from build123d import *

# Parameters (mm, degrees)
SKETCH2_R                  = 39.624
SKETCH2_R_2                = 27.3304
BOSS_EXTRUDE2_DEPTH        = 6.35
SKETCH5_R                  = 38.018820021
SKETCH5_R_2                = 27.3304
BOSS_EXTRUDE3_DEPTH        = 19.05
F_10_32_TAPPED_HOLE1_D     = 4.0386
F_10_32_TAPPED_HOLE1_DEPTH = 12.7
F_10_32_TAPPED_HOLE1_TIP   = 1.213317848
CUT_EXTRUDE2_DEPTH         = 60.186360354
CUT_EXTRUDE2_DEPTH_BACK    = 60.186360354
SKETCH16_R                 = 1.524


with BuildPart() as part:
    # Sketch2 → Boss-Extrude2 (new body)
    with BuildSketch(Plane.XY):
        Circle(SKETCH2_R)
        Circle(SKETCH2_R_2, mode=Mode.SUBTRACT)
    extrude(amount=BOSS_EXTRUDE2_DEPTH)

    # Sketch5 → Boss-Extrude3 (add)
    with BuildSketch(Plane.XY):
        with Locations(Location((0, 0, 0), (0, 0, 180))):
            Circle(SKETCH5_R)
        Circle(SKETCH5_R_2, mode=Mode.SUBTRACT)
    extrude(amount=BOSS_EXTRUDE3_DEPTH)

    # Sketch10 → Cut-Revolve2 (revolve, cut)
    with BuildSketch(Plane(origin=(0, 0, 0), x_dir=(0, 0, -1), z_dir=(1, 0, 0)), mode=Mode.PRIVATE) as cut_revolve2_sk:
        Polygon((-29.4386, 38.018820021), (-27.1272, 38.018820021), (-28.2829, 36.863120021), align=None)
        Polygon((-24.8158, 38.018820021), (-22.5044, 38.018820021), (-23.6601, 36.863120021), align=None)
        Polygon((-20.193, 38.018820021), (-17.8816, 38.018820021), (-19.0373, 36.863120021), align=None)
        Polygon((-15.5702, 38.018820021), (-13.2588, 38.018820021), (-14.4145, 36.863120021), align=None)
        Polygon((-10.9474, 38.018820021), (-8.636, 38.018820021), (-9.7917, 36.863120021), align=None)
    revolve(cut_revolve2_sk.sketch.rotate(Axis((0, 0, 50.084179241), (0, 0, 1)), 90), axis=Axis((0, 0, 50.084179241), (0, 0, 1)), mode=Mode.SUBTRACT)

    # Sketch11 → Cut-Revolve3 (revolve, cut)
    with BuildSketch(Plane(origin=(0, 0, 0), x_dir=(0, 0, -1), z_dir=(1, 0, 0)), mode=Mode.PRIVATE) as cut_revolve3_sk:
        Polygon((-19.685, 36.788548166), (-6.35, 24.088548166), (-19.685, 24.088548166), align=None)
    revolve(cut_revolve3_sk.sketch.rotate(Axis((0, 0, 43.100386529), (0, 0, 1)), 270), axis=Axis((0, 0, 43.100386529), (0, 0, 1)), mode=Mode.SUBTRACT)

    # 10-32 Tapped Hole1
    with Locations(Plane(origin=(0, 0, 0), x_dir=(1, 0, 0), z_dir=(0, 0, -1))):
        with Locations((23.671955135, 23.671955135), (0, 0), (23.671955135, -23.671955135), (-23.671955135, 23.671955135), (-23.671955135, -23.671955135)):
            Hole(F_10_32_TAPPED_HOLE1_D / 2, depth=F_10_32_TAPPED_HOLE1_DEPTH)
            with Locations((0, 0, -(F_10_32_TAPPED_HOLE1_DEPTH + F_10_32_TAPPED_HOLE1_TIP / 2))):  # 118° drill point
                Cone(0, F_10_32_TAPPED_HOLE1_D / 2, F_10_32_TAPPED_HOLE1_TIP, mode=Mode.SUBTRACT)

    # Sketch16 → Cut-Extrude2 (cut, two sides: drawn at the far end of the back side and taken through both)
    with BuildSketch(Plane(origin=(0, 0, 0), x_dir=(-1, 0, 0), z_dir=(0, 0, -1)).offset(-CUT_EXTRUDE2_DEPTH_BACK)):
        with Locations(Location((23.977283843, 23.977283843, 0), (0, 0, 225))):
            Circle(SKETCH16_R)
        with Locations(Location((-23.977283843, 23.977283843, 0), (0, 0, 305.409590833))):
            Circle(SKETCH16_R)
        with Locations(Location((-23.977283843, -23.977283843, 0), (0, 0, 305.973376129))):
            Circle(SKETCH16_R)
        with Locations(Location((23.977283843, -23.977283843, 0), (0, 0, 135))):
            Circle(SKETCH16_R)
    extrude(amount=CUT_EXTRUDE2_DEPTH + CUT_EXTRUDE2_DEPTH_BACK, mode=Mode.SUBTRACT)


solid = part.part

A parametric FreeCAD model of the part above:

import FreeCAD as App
import Part
import Sketcher
Q = App.Units.Quantity

doc = App.newDocument("Part")
body = doc.addObject("PartDesign::Body", "Body")

sketch1 = doc.addObject("Sketcher::SketchObject", "Sketch")
body.addObject(sketch1)
sketch1.AttachmentSupport = (doc.XY_Plane, [""])
sketch1.MapMode = "FlatFace"
sketch1.addGeometry([
    Part.Circle(App.Vector(0, 0, 0), App.Vector(0, 0, 1), 40),
    Part.Circle(App.Vector(0, 0, 0), App.Vector(0, 0, 1), 27),
], False)
sketch1.addConstraint([
    Sketcher.Constraint("Coincident", 0, 3, -1, 1),
    Sketcher.Constraint("Coincident", 1, 3, -1, 1),
    Sketcher.Constraint("Diameter", 0, Q("3.12 in")),
    Sketcher.Constraint("Diameter", 1, Q("2.152 in")),
])
pad1 = doc.addObject("PartDesign::Pad", "Pad")
body.addObject(pad1)
pad1.Profile = sketch1
pad1.Length = Q("0.25 in")

sketch2 = doc.addObject("Sketcher::SketchObject", "Sketch001")
body.addObject(sketch2)
sketch2.AttachmentSupport = (doc.XY_Plane, [""])
sketch2.MapMode = "FlatFace"
sketch2.addGeometry([
    Part.Circle(App.Vector(0, 0, 0), App.Vector(0, 0, 1), 38),
    Part.Circle(App.Vector(0, 0, 0), App.Vector(0, 0, 1), 27),
], False)
sketch2.addConstraint([
    Sketcher.Constraint("Coincident", 0, 3, -1, 1),
    Sketcher.Constraint("Coincident", 1, 3, -1, 1),
    Sketcher.Constraint("Diameter", 1, Q("2.152 in")),
    Sketcher.Constraint("Diameter", 0, Q("76.03764 mm")),
])
pad2 = doc.addObject("PartDesign::Pad", "Pad001")
body.addObject(pad2)
pad2.Profile = sketch2
pad2.Length = Q("0.75 in")

sketch3 = doc.addObject("Sketcher::SketchObject", "Sketch002")
body.addObject(sketch3)
sketch3.AttachmentSupport = (doc.YZ_Plane, [""])
sketch3.MapMode = "FlatFace"
sketch3.addGeometry([
    Part.LineSegment(App.Vector(38, 27.1, 0), App.Vector(38, 29.4, 0)),
    Part.LineSegment(App.Vector(38, 29.4, 0), App.Vector(36.9, 28.3, 0)),
    Part.LineSegment(App.Vector(36.9, 28.3, 0), App.Vector(38, 27.1, 0)),
    Part.LineSegment(App.Vector(38, 22.5, 0), App.Vector(38, 24.8, 0)),
    Part.LineSegment(App.Vector(38, 24.8, 0), App.Vector(36.9, 23.7, 0)),
    Part.LineSegment(App.Vector(36.9, 23.7, 0), App.Vector(38, 22.5, 0)),
    Part.LineSegment(App.Vector(38, 17.9, 0), App.Vector(38, 20.2, 0)),
    Part.LineSegment(App.Vector(38, 20.2, 0), App.Vector(36.9, 19, 0)),
    Part.LineSegment(App.Vector(36.9, 19, 0), App.Vector(38, 17.9, 0)),
    Part.LineSegment(App.Vector(38, 13.3, 0), App.Vector(38, 15.6, 0)),
    Part.LineSegment(App.Vector(38, 15.6, 0), App.Vector(36.9, 14.4, 0)),
    Part.LineSegment(App.Vector(36.9, 14.4, 0), App.Vector(38, 13.3, 0)),
    Part.LineSegment(App.Vector(38, 8.6, 0), App.Vector(38, 10.9, 0)),
    Part.LineSegment(App.Vector(38, 10.9, 0), App.Vector(36.9, 9.8, 0)),
    Part.LineSegment(App.Vector(36.9, 9.8, 0), App.Vector(38, 8.6, 0)),
], False)
sketch3.addConstraint([
    Sketcher.Constraint("Coincident", 0, 2, 1, 1),
    Sketcher.Constraint("Coincident", 1, 2, 2, 1),
    Sketcher.Constraint("Coincident", 2, 2, 0, 1),
    Sketcher.Constraint("Coincident", 3, 2, 4, 1),
    Sketcher.Constraint("Coincident", 4, 2, 5, 1),
    Sketcher.Constraint("Coincident", 5, 2, 3, 1),
    Sketcher.Constraint("Coincident", 6, 2, 7, 1),
    Sketcher.Constraint("Coincident", 7, 2, 8, 1),
    Sketcher.Constraint("Coincident", 8, 2, 6, 1),
    Sketcher.Constraint("Coincident", 9, 2, 10, 1),
    Sketcher.Constraint("Coincident", 10, 2, 11, 1),
    Sketcher.Constraint("Coincident", 11, 2, 9, 1),
    Sketcher.Constraint("Coincident", 12, 2, 13, 1),
    Sketcher.Constraint("Coincident", 13, 2, 14, 1),
    Sketcher.Constraint("Coincident", 14, 2, 12, 1),
    Sketcher.Constraint("Vertical", 0),
    Sketcher.Constraint("Vertical", 3),
    Sketcher.Constraint("Vertical", 6),
    Sketcher.Constraint("Vertical", 9),
    Sketcher.Constraint("Vertical", 12),
    Sketcher.Constraint("Perpendicular", 1, 2),
    Sketcher.Constraint("Perpendicular", 2, 4),
    Sketcher.Constraint("Perpendicular", 4, 5),
    Sketcher.Constraint("Perpendicular", 5, 7),
    Sketcher.Constraint("Perpendicular", 7, 8),
    Sketcher.Constraint("Perpendicular", 8, 10),
    Sketcher.Constraint("Perpendicular", 10, 11),
    Sketcher.Constraint("Perpendicular", 11, 13),
    Sketcher.Constraint("Perpendicular", 13, 14),
    Sketcher.Constraint("Vertical", 2, 2, 3, 2),
    Sketcher.Constraint("Vertical", 1, 2, 4, 2),
    Sketcher.Constraint("Vertical", 5, 2, 6, 2),
    Sketcher.Constraint("Vertical", 4, 2, 7, 2),
    Sketcher.Constraint("Vertical", 8, 2, 9, 2),
    Sketcher.Constraint("Vertical", 7, 2, 10, 2),
    Sketcher.Constraint("Vertical", 11, 2, 12, 2),
    Sketcher.Constraint("Vertical", 10, 2, 13, 2),
    Sketcher.Constraint("Equal", 1, 2),
    Sketcher.Constraint("DistanceY", 0, 1, 0, 2, Q("0.091 in")),
    Sketcher.Constraint("DistanceY", -1, 1, 14, 2, Q("0.34 in")),
    Sketcher.Constraint("DistanceY", -1, 1, 0, 2, Q("1.159 in")),
    Sketcher.Constraint("DistanceY", -1, 1, 3, 2, Q("0.977 in")),
    Sketcher.Constraint("DistanceY", -1, 1, 6, 2, Q("0.795 in")),
    Sketcher.Constraint("DistanceY", -1, 1, 9, 2, Q("0.613 in")),
    Sketcher.Constraint("DistanceX", -1, 1, 0, 2, Q("38.01882 mm")),
])
groove = doc.addObject("PartDesign::Groove", "Groove")
body.addObject(groove)
groove.Profile = sketch3
groove.ReferenceAxis = (sketch3, ["V_Axis"])
groove.Angle = 360

sketch4 = doc.addObject("Sketcher::SketchObject", "Sketch003")
body.addObject(sketch4)
sketch4.AttachmentSupport = (doc.YZ_Plane, [""])
sketch4.MapMode = "FlatFace"
sketch4.addGeometry([
    Part.LineSegment(App.Vector(24, 6, 0), App.Vector(37, 20, 0)),
    Part.LineSegment(App.Vector(37, 20, 0), App.Vector(24, 20, 0)),
    Part.LineSegment(App.Vector(24, 20, 0), App.Vector(24, 6, 0)),
], False)
sketch4.addConstraint([
    Sketcher.Constraint("Coincident", 0, 2, 1, 1),
    Sketcher.Constraint("Coincident", 1, 2, 2, 1),
    Sketcher.Constraint("Coincident", 2, 2, 0, 1),
    Sketcher.Constraint("Horizontal", 1),
    Sketcher.Constraint("Vertical", 2),
    Sketcher.Constraint("DistanceX", 1, 2, 1, 1, Q("0.5 in")),
    Sketcher.Constraint("DistanceY", 2, 2, 2, 1, Q("0.525 in")),
    Sketcher.Constraint("DistanceY", -1, 1, 2, 2, Q("0.25 in")),
    Sketcher.Constraint("DistanceX", -1, 1, 0, 2, Q("36.788548 mm")),
])
groove2 = doc.addObject("PartDesign::Groove", "Groove001")
body.addObject(groove2)
groove2.Profile = sketch4
groove2.ReferenceAxis = (sketch4, ["V_Axis"])
groove2.Angle = 360

sketch5 = doc.addObject("Sketcher::SketchObject", "Sketch004")
body.addObject(sketch5)
sketch5.AttachmentSupport = (doc.XY_Plane, [""])
sketch5.MapMode = "FlatFace"
sketch5.addGeometry([
    Part.Circle(App.Vector(23.7, -23.7, 0), App.Vector(0, 0, 1), 2),
    Part.Circle(App.Vector(0, 0, 0), App.Vector(0, 0, 1), 2),
    Part.Circle(App.Vector(23.7, 23.7, 0), App.Vector(0, 0, 1), 2),
    Part.Circle(App.Vector(-23.7, -23.7, 0), App.Vector(0, 0, 1), 2),
    Part.Circle(App.Vector(-23.7, 23.7, 0), App.Vector(0, 0, 1), 2),
], False)
sketch5.addConstraint([
    Sketcher.Constraint("Coincident", 1, 3, -1, 1),
    Sketcher.Constraint("Equal", 0, 1),
    Sketcher.Constraint("Equal", 1, 2),
    Sketcher.Constraint("Equal", 2, 3),
    Sketcher.Constraint("Equal", 3, 4),
    Sketcher.Constraint("Symmetric", 2, 3, 3, 3, -1, 1),
    Sketcher.Constraint("Symmetric", 0, 3, 4, 3, -1, 1),
    Sketcher.Constraint("Symmetric", 0, 3, 3, 3, -2),
    Sketcher.Constraint("Diameter", 0, Q("0.159 in")),
    Sketcher.Constraint("DistanceY", 0, 3, 2, 3, Q("47.34391 mm")),
    Sketcher.Constraint("DistanceX", 3, 3, 0, 3, Q("47.34391 mm")),
])
doc.recompute()
hole = doc.addObject("PartDesign::Hole", "Hole")
body.addObject(hole)
hole.Profile = sketch5
hole.ThreadType = "None"
hole.Diameter = Q("0.159 in")
hole.DepthType = "Dimension"
hole.Depth = Q("0.5 in")
hole.DrillPoint = "Angled"
hole.DrillPointAngle = 118
hole.Reversed = True

sketch6 = doc.addObject("Sketcher::SketchObject", "Sketch005")
body.addObject(sketch6)
sketch6.AttachmentSupport = (doc.XY_Plane, [""])
sketch6.MapMode = "FlatFace"
sketch6.addGeometry([
    Part.Circle(App.Vector(-24, 24, 0), App.Vector(0, 0, 1), 1.5),
    Part.Circle(App.Vector(24, 24, 0), App.Vector(0, 0, 1), 1.5),
    Part.Circle(App.Vector(24, -24, 0), App.Vector(0, 0, 1), 1.5),
    Part.Circle(App.Vector(-24, -24, 0), App.Vector(0, 0, 1), 1.5),
], False)
sketch6.addConstraint([
    Sketcher.Constraint("Equal", 0, 1),
    Sketcher.Constraint("Equal", 1, 2),
    Sketcher.Constraint("Equal", 2, 3),
    Sketcher.Constraint("Symmetric", 0, 3, 2, 3, -1, 1),
    Sketcher.Constraint("Symmetric", 1, 3, 3, 3, -1, 1),
    Sketcher.Constraint("Symmetric", 0, 3, 1, 3, -2),
    Sketcher.Constraint("Diameter", 0, Q("0.12 in")),
    Sketcher.Constraint("DistanceX", 0, 3, -1, 1, Q("23.977284 mm")),
    Sketcher.Constraint("DistanceY", -1, 1, 0, 3, Q("23.977284 mm")),
])
pocket1 = doc.addObject("PartDesign::Pocket", "Pocket")
body.addObject(pocket1)
pocket1.Profile = sketch6
pocket1.Type = "ThroughAll"
pocket1.Midplane = True

doc.recompute()
